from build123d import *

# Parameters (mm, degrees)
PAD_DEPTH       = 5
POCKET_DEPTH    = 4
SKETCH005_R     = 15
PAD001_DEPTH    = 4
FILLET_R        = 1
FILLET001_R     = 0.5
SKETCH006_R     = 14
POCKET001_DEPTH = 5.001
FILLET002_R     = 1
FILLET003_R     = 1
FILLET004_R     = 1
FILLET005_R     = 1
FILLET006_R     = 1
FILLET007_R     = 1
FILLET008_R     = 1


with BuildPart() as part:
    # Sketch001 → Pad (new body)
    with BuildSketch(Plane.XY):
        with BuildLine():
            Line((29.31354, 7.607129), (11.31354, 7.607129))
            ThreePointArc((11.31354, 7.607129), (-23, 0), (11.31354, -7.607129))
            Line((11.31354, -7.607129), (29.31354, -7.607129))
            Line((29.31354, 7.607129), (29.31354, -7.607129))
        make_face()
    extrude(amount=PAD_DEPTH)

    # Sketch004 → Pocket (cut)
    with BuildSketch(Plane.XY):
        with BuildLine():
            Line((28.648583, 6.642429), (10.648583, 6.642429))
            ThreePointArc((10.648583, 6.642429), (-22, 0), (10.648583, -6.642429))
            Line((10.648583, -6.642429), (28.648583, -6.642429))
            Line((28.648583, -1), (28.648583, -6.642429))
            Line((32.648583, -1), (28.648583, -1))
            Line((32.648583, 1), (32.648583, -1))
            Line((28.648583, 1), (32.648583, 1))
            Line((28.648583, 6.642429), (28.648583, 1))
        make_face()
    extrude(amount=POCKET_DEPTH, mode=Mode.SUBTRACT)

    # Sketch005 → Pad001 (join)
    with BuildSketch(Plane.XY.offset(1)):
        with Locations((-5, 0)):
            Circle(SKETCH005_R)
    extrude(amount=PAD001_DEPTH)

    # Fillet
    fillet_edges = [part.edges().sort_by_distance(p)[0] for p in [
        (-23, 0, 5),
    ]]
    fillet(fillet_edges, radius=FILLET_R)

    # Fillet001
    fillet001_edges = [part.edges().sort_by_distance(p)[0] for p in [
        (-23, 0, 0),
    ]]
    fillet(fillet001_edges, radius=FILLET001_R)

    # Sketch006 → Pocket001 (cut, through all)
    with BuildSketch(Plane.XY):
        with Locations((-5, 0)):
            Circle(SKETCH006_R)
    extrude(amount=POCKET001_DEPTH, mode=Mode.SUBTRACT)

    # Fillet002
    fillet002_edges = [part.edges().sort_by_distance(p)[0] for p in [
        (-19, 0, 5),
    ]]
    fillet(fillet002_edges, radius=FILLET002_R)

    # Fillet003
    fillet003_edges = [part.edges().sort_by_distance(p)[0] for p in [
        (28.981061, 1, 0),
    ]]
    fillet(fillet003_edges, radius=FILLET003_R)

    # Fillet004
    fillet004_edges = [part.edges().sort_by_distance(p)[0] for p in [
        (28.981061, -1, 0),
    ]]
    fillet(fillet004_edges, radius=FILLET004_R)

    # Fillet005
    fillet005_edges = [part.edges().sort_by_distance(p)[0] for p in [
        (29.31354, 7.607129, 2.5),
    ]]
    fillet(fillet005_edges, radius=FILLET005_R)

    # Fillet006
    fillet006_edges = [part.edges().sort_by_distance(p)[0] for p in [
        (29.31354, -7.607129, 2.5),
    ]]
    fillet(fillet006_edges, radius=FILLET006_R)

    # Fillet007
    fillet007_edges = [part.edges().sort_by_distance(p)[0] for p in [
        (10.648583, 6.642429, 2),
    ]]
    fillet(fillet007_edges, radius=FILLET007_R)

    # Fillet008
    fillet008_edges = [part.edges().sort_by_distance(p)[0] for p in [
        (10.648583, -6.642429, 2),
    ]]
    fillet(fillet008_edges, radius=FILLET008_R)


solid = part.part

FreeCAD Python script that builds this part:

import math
import FreeCAD as App
import Part
import Sketcher
from FreeCAD import Vector
Q = App.Units.Quantity


def edges_at(feature, points):
    """Names of the edges that pass closest to the given points."""
    edges = feature.Shape.Edges
    near = lambda p: min(range(len(edges)), key=lambda i: edges[i].distToShape(Part.Vertex(*p))[0])
    return sorted({f"Edge{near(p) + 1}" for p in points})

doc = App.newDocument("Part")
params = doc.addObject("Spreadsheet::Sheet", "Params")
for row, (alias, value) in enumerate([
    ("sketch1_radius", "18 mm"),
    ("sketch1_width", "18 mm"),
    ("pad1_length", "5 mm"),
    ("sketch2_radius", "17 mm"),
    ("sketch2_width", "18 mm"),
    ("sketch2_width2", "4 mm"),
    ("sketch2_height", "2 mm"),
    ("pocket1_length", "4 mm"),
    ("sketch3_diameter", "30 mm"),
    ("pad2_length", "4 mm"),
    ("fillet_radius", "1 mm"),
    ("fillet2_radius", "0.5 mm"),
    ("sketch4_diameter", "28 mm"),
    ("fillet3_radius", "1 mm"),
    ("fillet4_radius", "1 mm"),
    ("fillet5_radius", "1 mm"),
    ("fillet6_radius", "1 mm"),
    ("fillet7_radius", "1 mm"),
    ("fillet8_radius", "1 mm"),
    ("fillet9_radius", "1 mm"),
], start=1):
    params.set(f"A{row}", alias)
    params.set(f"B{row}", "=" + value)
    params.setAlias(f"B{row}", alias)

body = doc.addObject("PartDesign::Body", "Body")

# Sketch on XY plane
sketch1 = body.newObject("Sketcher::SketchObject", "Sketch")
sketch1.AttachmentSupport = (doc.getObject("XY_Plane"), [""])
sketch1.MapMode = "FlatFace"
sketch1.addGeometry(Part.LineSegment(Vector(29.31354, 7.607129, 0), Vector(11.31354, 7.607129, 0)), False)
sketch1.addGeometry(Part.ArcOfCircle(Part.Circle(Vector(-5, 0, 0), Vector(0, 0, 1), 18), math.radians(25.000001), math.radians(334.999999)), False)
sketch1.addGeometry(Part.LineSegment(Vector(11.31354, -7.607129, 0), Vector(29.31354, -7.607129, 0)), False)
sketch1.addGeometry(Part.LineSegment(Vector(29.31354, -7.607129, 0), Vector(29.31354, 7.607129, 0)), False)
sketch1.addConstraint(Sketcher.Constraint("Coincident", 0, 2, 1, 1))
sketch1.addConstraint(Sketcher.Constraint("Coincident", 1, 2, 2, 1))
sketch1.addConstraint(Sketcher.Constraint("Coincident", 2, 2, 3, 1))
sketch1.addConstraint(Sketcher.Constraint("Coincident", 3, 2, 0, 1))
sketch1.addConstraint(Sketcher.Constraint("Horizontal", 0))
sketch1.addConstraint(Sketcher.Constraint("Horizontal", 2))
sketch1.addConstraint(Sketcher.Constraint("Vertical", 3))
sketch1.addConstraint(Sketcher.Constraint("Symmetric", 0, 2, 1, 2, -1))
sketch1.addConstraint(Sketcher.Constraint("Radius", 1, Q("18 mm")))
sketch1.addConstraint(Sketcher.Constraint("DistanceX", 0, 2, 0, 1, Q("18 mm")))
sketch1.addConstraint(Sketcher.Constraint("DistanceX", 1, 3, -1, 1, Q("5 mm")))
sketch1.addConstraint(Sketcher.Constraint("DistanceY", 3, 1, 3, 2, Q("15.214258 mm")))
sketch1.setExpression("Constraints[8]", "Params.sketch1_radius")
sketch1.setExpression("Constraints[9]", "Params.sketch1_width")
pad1 = body.newObject("PartDesign::Pad", "Pad")
pad1.Profile = sketch1
pad1.setExpression("Length", "Params.pad1_length")

# Sketch on XY plane
sketch2 = body.newObject("Sketcher::SketchObject", "Sketch001")
sketch2.AttachmentSupport = (doc.getObject("XY_Plane"), [""])
sketch2.MapMode = "FlatFace"
sketch2.addGeometry(Part.LineSegment(Vector(28.648583, 6.642429, 0), Vector(10.648583, 6.642429, 0)), False)
sketch2.addGeometry(Part.ArcOfCircle(Part.Circle(Vector(-5, 0, 0), Vector(0, 0, 1), 17), math.radians(22.999999), math.radians(337.000001)), False)
sketch2.addGeometry(Part.LineSegment(Vector(10.648583, -6.642429, 0), Vector(28.648583, -6.642429, 0)), False)
sketch2.addGeometry(Part.LineSegment(Vector(28.648583, -6.642429, 0), Vector(28.648583, -1, 0)), False)
sketch2.addGeometry(Part.LineSegment(Vector(28.648583, -1, 0), Vector(32.648583, -1, 0)), False)
sketch2.addGeometry(Part.LineSegment(Vector(32.648583, -1, 0), Vector(32.648583, 1, 0)), False)
sketch2.addGeometry(Part.LineSegment(Vector(32.648583, 1, 0), Vector(28.648583, 1, 0)), False)
sketch2.addGeometry(Part.LineSegment(Vector(28.648583, 1, 0), Vector(28.648583, 6.642429, 0)), False)
sketch2.addConstraint(Sketcher.Constraint("Coincident", 0, 2, 1, 1))
sketch2.addConstraint(Sketcher.Constraint("Coincident", 1, 2, 2, 1))
sketch2.addConstraint(Sketcher.Constraint("Coincident", 2, 2, 3, 1))
sketch2.addConstraint(Sketcher.Constraint("Coincident", 3, 2, 4, 1))
sketch2.addConstraint(Sketcher.Constraint("Coincident", 4, 2, 5, 1))
sketch2.addConstraint(Sketcher.Constraint("Coincident", 5, 2, 6, 1))
sketch2.addConstraint(Sketcher.Constraint("Coincident", 6, 2, 7, 1))
sketch2.addConstraint(Sketcher.Constraint("Coincident", 7, 2, 0, 1))
sketch2.addConstraint(Sketcher.Constraint("Horizontal", 0))
sketch2.addConstraint(Sketcher.Constraint("Horizontal", 2))
sketch2.addConstraint(Sketcher.Constraint("Vertical", 3))
sketch2.addConstraint(Sketcher.Constraint("Horizontal", 4))
sketch2.addConstraint(Sketcher.Constraint("Vertical", 5))
sketch2.addConstraint(Sketcher.Constraint("Horizontal", 6))
sketch2.addConstraint(Sketcher.Constraint("Vertical", 7))
sketch2.addConstraint(Sketcher.Constraint("Symmetric", 0, 2, 1, 2, -1))
sketch2.addConstraint(Sketcher.Constraint("Symmetric", 3, 2, 6, 2, -1))
sketch2.addConstraint(Sketcher.Constraint("Radius", 1, Q("17 mm")))
sketch2.addConstraint(Sketcher.Constraint("DistanceX", 0, 2, 0, 1, Q("18 mm")))
sketch2.addConstraint(Sketcher.Constraint("DistanceX", 4, 1, 4, 2, Q("4 mm")))
sketch2.addConstraint(Sketcher.Constraint("DistanceY", 5, 1, 5, 2, Q("2 mm")))
sketch2.addConstraint(Sketcher.Constraint("DistanceX", 1, 3, -1, 1, Q("5 mm")))
sketch2.addConstraint(Sketcher.Constraint("DistanceY", 3, 1, 3, 2, Q("5.642429 mm")))
sketch2.setExpression("Constraints[17]", "Params.sketch2_radius")
sketch2.setExpression("Constraints[18]", "Params.sketch2_width")
sketch2.setExpression("Constraints[19]", "Params.sketch2_width2")
sketch2.setExpression("Constraints[20]", "Params.sketch2_height")
pocket1 = body.newObject("PartDesign::Pocket", "Pocket")
pocket1.Profile = sketch2
pocket1.setExpression("Length", "Params.pocket1_length")
pocket1.Reversed = True

# Sketch on XY plane
sketch3 = body.newObject("Sketcher::SketchObject", "Sketch002")
sketch3.AttachmentSupport = (doc.getObject("XY_Plane"), [""])
sketch3.MapMode = "FlatFace"
sketch3.AttachmentOffset = App.Placement(Vector(0, 0, 1), App.Rotation())
sketch3.addGeometry(Part.Circle(Vector(-5, 0, 0), Vector(0, 0, 1), 15), False)
sketch3.addConstraint(Sketcher.Constraint("PointOnObject", 0, 3, -1))
sketch3.addConstraint(Sketcher.Constraint("Diameter", 0, Q("30 mm")))
sketch3.addConstraint(Sketcher.Constraint("DistanceX", 0, 3, -1, 1, Q("5 mm")))
sketch3.setExpression("Constraints[1]", "Params.sketch3_diameter")
pad2 = body.newObject("PartDesign::Pad", "Pad001")
pad2.Profile = sketch3
pad2.setExpression("Length", "Params.pad2_length")
doc.recompute()

fillet = body.newObject("PartDesign::Fillet", "Fillet")
fillet.Base = (pad2, edges_at(pad2, [(-23, 0, 5)]))
fillet.setExpression("Radius", "Params.fillet_radius")
doc.recompute()

fillet2 = body.newObject("PartDesign::Fillet", "Fillet001")
fillet2.Base = (fillet, edges_at(fillet, [(-23, 0, 0)]))
fillet2.setExpression("Radius", "Params.fillet2_radius")

# Sketch on XY plane
sketch4 = body.newObject("Sketcher::SketchObject", "Sketch003")
sketch4.AttachmentSupport = (doc.getObject("XY_Plane"), [""])
sketch4.MapMode = "FlatFace"
sketch4.addGeometry(Part.Circle(Vector(-5, 0, 0), Vector(0, 0, 1), 14), False)
sketch4.addConstraint(Sketcher.Constraint("PointOnObject", 0, 3, -1))
sketch4.addConstraint(Sketcher.Constraint("Diameter", 0, Q("28 mm")))
sketch4.addConstraint(Sketcher.Constraint("DistanceX", 0, 3, -1, 1, Q("5 mm")))
sketch4.setExpression("Constraints[1]", "Params.sketch4_diameter")
pocket2 = body.newObject("PartDesign::Pocket", "Pocket001")
pocket2.Profile = sketch4
pocket2.Type = "ThroughAll"
pocket2.Reversed = True
doc.recompute()

fillet3 = body.newObject("PartDesign::Fillet", "Fillet002")
fillet3.Base = (pocket2, edges_at(pocket2, [(-19, 0, 5)]))
fillet3.setExpression("Radius", "Params.fillet3_radius")
doc.recompute()

fillet4 = body.newObject("PartDesign::Fillet", "Fillet003")
fillet4.Base = (fillet3, edges_at(fillet3, [(28.981, 1, 0)]))
fillet4.setExpression("Radius", "Params.fillet4_radius")
doc.recompute()

fillet5 = body.newObject("PartDesign::Fillet", "Fillet004")
fillet5.Base = (fillet4, edges_at(fillet4, [(28.981, -1, 0)]))
fillet5.setExpression("Radius", "Params.fillet5_radius")
doc.recompute()

fillet6 = body.newObject("PartDesign::Fillet", "Fillet005")
fillet6.Base = (fillet5, edges_at(fillet5, [(29.314, 7.607, 2.5)]))
fillet6.setExpression("Radius", "Params.fillet6_radius")
doc.recompute()

fillet7 = body.newObject("PartDesign::Fillet", "Fillet006")
fillet7.Base = (fillet6, edges_at(fillet6, [(29.314, -7.607, 2.5)]))
fillet7.setExpression("Radius", "Params.fillet7_radius")
doc.recompute()

fillet8 = body.newObject("PartDesign::Fillet", "Fillet007")
fillet8.Base = (fillet7, edges_at(fillet7, [(10.649, 6.642, 2)]))
fillet8.setExpression("Radius", "Params.fillet8_radius")
doc.recompute()

fillet9 = body.newObject("PartDesign::Fillet", "Fillet008")
fillet9.Base = (fillet8, edges_at(fillet8, [(10.649, -6.642, 2)]))
fillet9.setExpression("Radius", "Params.fillet9_radius")

doc.recompute()
